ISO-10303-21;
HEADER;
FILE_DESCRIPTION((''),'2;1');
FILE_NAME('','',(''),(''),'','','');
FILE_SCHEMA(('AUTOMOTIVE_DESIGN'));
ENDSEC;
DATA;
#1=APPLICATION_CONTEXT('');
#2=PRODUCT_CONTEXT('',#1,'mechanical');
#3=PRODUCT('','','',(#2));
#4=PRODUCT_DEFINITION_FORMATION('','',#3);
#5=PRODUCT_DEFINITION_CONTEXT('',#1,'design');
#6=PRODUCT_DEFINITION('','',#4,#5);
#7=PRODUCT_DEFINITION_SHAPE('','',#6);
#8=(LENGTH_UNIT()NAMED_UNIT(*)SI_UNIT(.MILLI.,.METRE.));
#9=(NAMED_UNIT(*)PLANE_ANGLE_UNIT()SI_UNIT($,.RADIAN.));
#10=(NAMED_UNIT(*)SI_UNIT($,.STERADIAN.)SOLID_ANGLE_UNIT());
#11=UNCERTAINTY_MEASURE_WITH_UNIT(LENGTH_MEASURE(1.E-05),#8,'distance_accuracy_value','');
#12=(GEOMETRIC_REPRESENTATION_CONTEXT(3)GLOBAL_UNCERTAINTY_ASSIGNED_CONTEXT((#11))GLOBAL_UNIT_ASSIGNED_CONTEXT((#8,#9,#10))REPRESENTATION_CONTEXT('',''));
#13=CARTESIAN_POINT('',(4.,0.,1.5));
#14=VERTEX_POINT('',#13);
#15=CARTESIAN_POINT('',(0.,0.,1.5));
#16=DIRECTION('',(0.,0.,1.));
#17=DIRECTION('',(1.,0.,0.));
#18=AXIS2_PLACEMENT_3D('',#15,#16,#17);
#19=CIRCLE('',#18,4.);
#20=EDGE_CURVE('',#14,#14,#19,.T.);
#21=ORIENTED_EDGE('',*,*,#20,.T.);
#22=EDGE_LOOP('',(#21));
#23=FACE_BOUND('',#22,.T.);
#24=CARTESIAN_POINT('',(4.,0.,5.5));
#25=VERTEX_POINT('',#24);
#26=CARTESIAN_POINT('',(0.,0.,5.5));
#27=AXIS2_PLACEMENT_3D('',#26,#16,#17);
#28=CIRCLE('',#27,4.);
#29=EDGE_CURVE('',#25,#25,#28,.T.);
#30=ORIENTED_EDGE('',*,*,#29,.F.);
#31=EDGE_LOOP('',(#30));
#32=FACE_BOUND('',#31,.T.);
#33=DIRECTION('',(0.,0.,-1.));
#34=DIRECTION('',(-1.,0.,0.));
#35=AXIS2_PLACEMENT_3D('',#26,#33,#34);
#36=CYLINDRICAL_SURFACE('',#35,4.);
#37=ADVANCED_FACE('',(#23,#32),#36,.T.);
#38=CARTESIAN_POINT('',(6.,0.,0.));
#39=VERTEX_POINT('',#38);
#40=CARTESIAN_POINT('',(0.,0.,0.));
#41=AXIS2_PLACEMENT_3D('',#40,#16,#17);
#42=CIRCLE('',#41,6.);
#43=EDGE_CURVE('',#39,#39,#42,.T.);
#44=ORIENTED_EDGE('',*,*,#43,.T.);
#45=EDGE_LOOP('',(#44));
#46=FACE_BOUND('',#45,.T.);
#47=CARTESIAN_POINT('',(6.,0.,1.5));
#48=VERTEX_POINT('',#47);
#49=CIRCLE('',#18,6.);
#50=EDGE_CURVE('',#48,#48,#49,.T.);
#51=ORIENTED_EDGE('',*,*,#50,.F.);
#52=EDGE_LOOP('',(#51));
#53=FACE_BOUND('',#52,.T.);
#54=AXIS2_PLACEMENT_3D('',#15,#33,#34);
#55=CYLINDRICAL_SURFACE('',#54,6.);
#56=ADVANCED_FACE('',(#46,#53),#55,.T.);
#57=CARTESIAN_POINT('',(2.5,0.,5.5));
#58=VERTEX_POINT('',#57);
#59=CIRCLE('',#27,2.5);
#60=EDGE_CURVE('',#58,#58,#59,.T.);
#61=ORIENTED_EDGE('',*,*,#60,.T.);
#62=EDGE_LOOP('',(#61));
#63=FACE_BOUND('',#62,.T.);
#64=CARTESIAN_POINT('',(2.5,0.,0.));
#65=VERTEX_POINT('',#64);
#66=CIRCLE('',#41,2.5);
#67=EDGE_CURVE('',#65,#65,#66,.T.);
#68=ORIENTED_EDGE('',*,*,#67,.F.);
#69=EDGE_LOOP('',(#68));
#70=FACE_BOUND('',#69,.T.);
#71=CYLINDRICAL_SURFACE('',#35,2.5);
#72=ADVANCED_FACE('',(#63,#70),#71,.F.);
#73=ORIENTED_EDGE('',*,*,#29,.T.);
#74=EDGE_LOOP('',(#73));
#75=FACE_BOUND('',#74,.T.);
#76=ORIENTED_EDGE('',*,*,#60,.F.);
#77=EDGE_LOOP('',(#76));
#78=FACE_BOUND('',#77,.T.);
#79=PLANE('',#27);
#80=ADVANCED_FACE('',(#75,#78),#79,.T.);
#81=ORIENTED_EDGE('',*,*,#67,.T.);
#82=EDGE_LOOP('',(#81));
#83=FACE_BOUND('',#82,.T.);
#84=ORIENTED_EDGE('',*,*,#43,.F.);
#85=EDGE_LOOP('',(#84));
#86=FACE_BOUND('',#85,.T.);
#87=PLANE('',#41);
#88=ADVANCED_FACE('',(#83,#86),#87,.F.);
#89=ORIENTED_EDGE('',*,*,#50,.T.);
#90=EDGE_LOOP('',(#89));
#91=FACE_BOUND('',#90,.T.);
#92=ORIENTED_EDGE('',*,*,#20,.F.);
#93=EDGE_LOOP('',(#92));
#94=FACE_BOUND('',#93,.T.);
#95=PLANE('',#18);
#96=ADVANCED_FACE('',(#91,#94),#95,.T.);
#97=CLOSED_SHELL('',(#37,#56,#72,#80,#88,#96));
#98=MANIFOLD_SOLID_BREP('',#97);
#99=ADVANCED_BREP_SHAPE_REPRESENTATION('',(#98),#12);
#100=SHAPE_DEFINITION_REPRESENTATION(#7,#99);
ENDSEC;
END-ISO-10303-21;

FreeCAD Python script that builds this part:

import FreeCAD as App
import Part
import Sketcher
Q = App.Units.Quantity

doc = App.newDocument("Part")
params = doc.addObject("Spreadsheet::Sheet", "Params")
for row, (alias, value) in enumerate([
    ("sketch1_diameter", "12 mm"),
    ("sketch1_diameter2", "8 mm"),
    ("pad1_length", "1.5 mm"),
    ("sketch2_diameter", "8 mm"),
    ("sketch2_diameter2", "5 mm"),
    ("pad2_length", "5.5 mm"),
], start=1):
    params.set(f"A{row}", alias)
    params.set(f"B{row}", "=" + value)
    params.setAlias(f"B{row}", alias)

body = doc.addObject("PartDesign::Body", "Body")

# Sketch on XY plane
sketch1 = doc.addObject("Sketcher::SketchObject", "Sketch")
body.addObject(sketch1)
sketch1.AttachmentSupport = (doc.XY_Plane, [""])
sketch1.MapMode = "FlatFace"
sketch1.addGeometry([
    Part.Circle(App.Vector(0, 0, 0), App.Vector(0, 0, 1), 6),
    Part.Circle(App.Vector(0, 0, 0), App.Vector(0, 0, 1), 4),
], False)
sketch1.addConstraint([
    Sketcher.Constraint("Coincident", 0, 3, -1, 1),
    Sketcher.Constraint("Coincident", 1, 3, -1, 1),
    Sketcher.Constraint("Diameter", 0, Q("12 mm")),
    Sketcher.Constraint("Diameter", 1, Q("8 mm")),
])
sketch1.setExpression("Constraints[2]", "Params.sketch1_diameter")
sketch1.setExpression("Constraints[3]", "Params.sketch1_diameter2")
pad1 = doc.addObject("PartDesign::Pad", "Pad")
body.addObject(pad1)
pad1.Profile = sketch1
pad1.setExpression("Length", "Params.pad1_length")

# Sketch on XY plane
sketch2 = doc.addObject("Sketcher::SketchObject", "Sketch001")
body.addObject(sketch2)
sketch2.AttachmentSupport = (doc.XY_Plane, [""])
sketch2.MapMode = "FlatFace"
sketch2.addGeometry([
    Part.Circle(App.Vector(0, 0, 0), App.Vector(0, 0, 1), 4),
    Part.Circle(App.Vector(0, 0, 0), App.Vector(0, 0, 1), 2.5),
], False)
sketch2.addConstraint([
    Sketcher.Constraint("Coincident", 0, 3, -1, 1),
    Sketcher.Constraint("Coincident", 1, 3, -1, 1),
    Sketcher.Constraint("Diameter", 0, Q("8 mm")),
    Sketcher.Constraint("Diameter", 1, Q("5 mm")),
])
sketch2.setExpression("Constraints[2]", "Params.sketch2_diameter")
sketch2.setExpression("Constraints[3]", "Params.sketch2_diameter2")
pad2 = doc.addObject("PartDesign::Pad", "Pad001")
body.addObject(pad2)
pad2.Profile = sketch2
pad2.setExpression("Length", "Params.pad2_length")

doc.recompute()
